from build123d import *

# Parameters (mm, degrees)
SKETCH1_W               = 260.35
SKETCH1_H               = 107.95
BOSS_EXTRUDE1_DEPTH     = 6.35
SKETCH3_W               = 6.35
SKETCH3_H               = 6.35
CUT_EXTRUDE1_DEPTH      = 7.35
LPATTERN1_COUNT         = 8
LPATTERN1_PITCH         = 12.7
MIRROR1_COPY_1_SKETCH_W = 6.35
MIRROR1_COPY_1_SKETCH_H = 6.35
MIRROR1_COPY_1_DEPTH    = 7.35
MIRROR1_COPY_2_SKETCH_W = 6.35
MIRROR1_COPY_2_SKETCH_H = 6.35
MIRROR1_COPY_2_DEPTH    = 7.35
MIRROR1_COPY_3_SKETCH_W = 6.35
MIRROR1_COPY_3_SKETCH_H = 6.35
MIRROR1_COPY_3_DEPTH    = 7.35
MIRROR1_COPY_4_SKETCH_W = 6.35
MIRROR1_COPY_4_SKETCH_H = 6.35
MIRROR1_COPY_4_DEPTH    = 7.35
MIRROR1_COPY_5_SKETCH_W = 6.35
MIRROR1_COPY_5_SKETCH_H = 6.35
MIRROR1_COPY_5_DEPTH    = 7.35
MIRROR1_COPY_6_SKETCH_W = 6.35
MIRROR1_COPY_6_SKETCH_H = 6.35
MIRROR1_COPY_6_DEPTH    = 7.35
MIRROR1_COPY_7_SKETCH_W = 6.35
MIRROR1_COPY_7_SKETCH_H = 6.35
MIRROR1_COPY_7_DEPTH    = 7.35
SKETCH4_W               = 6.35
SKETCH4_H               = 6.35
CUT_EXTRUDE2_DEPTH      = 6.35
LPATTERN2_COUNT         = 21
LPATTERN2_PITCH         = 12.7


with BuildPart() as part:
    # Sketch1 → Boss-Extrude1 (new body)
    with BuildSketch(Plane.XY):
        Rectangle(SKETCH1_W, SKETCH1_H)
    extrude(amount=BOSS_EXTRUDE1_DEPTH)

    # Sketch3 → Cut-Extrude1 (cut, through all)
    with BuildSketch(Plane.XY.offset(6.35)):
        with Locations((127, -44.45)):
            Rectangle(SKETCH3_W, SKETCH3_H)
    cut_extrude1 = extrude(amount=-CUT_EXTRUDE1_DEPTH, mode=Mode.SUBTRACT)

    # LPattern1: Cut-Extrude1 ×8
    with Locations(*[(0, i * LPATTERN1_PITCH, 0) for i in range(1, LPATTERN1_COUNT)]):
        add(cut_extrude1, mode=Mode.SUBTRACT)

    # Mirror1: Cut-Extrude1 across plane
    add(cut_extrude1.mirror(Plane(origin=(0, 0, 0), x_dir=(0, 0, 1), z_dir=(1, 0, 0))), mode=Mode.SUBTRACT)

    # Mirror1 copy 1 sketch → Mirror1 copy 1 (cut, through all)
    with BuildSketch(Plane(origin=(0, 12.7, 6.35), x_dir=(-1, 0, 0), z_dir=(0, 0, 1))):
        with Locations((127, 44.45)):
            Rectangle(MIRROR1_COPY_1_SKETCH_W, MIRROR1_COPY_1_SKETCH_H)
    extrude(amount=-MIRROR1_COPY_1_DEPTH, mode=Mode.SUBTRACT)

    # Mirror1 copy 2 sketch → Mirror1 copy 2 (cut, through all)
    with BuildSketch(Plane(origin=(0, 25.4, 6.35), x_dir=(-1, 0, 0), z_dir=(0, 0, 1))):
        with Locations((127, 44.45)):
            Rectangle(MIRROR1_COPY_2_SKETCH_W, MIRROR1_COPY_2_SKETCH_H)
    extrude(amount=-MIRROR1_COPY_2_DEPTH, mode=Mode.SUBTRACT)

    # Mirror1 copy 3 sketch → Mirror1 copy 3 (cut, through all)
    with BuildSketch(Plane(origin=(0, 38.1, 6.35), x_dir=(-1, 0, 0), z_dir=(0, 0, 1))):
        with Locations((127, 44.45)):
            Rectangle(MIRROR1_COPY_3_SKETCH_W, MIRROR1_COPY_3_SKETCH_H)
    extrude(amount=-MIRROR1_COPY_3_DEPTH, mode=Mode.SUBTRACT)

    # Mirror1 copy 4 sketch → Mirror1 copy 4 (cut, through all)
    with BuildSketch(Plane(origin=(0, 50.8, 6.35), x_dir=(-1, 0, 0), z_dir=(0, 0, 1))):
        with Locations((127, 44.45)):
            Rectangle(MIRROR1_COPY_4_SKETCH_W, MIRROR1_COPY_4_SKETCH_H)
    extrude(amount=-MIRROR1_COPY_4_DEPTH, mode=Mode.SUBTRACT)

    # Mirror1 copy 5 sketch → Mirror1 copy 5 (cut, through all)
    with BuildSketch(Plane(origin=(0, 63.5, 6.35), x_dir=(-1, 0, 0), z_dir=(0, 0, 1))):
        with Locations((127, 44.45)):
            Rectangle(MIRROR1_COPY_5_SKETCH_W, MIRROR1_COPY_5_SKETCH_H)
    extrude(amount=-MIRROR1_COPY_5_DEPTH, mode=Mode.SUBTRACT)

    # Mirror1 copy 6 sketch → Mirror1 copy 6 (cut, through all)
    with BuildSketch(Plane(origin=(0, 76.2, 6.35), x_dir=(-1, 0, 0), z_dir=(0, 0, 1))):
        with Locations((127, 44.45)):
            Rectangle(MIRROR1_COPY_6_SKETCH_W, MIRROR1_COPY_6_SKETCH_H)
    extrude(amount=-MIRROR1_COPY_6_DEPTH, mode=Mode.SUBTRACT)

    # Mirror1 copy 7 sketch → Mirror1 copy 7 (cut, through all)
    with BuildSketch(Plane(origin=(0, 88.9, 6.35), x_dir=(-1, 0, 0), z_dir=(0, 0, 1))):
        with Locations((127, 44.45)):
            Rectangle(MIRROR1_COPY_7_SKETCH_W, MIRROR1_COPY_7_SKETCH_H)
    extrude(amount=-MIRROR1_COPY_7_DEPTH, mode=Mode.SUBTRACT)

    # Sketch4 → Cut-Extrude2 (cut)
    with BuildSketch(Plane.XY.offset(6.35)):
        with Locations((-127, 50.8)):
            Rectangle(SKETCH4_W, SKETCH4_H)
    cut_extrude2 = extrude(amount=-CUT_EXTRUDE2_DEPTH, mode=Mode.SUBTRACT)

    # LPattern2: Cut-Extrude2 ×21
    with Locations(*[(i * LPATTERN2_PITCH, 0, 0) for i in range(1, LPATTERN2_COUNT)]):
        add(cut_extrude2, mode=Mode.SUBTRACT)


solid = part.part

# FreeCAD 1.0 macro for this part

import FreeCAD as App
import Part
import Sketcher

V = App.Vector
Q = App.Units.Quantity

doc = App.newDocument("Part")
body = doc.addObject("PartDesign::Body", "Body")

sketch1 = doc.addObject("Sketcher::SketchObject", "Sketch")
body.addObject(sketch1)
sketch1.AttachmentSupport = (doc.XY_Plane, [""])
sketch1.MapMode = "FlatFace"
sketch1.addGeometry([
    Part.LineSegment(V(-130, 54, 0), V(-130, -54, 0)),
    Part.LineSegment(V(-130, -54, 0), V(130, -54, 0)),
    Part.LineSegment(V(130, -54, 0), V(130, 54, 0)),
    Part.LineSegment(V(130, 54, 0), V(-130, 54, 0)),
], False)
sketch1.addConstraint([
    Sketcher.Constraint("Coincident", 0, 2, 1, 1),
    Sketcher.Constraint("Coincident", 1, 2, 2, 1),
    Sketcher.Constraint("Coincident", 2, 2, 3, 1),
    Sketcher.Constraint("Coincident", 3, 2, 0, 1),
    Sketcher.Constraint("Vertical", 0),
    Sketcher.Constraint("Horizontal", 1),
    Sketcher.Constraint("Vertical", 2),
    Sketcher.Constraint("Horizontal", 3),
    Sketcher.Constraint("Symmetric", 0, 2, 2, 2, -1, 1),
    Sketcher.Constraint("DistanceX", 1, 1, 1, 2, Q("10.25 in")),
    Sketcher.Constraint("DistanceY", 0, 2, 0, 1, Q("4.25 in")),
])
pad1 = doc.addObject("PartDesign::Pad", "Pad")
body.addObject(pad1)
pad1.Profile = sketch1
pad1.Length = Q("0.25 in")

sketch2 = doc.addObject("Sketcher::SketchObject", "Sketch001")
body.addObject(sketch2)
sketch2.AttachmentSupport = (doc.XY_Plane, [""])
sketch2.MapMode = "FlatFace"
sketch2.AttachmentOffset = App.Placement(V(0, 0, 0.25 * 25.4), App.Rotation())
sketch2.addGeometry([
    Part.LineSegment(V(124, -41, 0), V(124, -48, 0)),
    Part.LineSegment(V(124, -48, 0), V(130, -48, 0)),
    Part.LineSegment(V(130, -48, 0), V(130, -41, 0)),
    Part.LineSegment(V(130, -41, 0), V(124, -41, 0)),
], False)
sketch2.addConstraint([
    Sketcher.Constraint("Coincident", 0, 2, 1, 1),
    Sketcher.Constraint("Coincident", 1, 2, 2, 1),
    Sketcher.Constraint("Coincident", 2, 2, 3, 1),
    Sketcher.Constraint("Coincident", 3, 2, 0, 1),
    Sketcher.Constraint("Vertical", 0),
    Sketcher.Constraint("Horizontal", 1),
    Sketcher.Constraint("Vertical", 2),
    Sketcher.Constraint("Horizontal", 3),
    Sketcher.Constraint("Equal", 3, 0),
    Sketcher.Constraint("DistanceX", 1, 1, 1, 2, Q("0.25 in")),
    Sketcher.Constraint("DistanceX", -1, 1, 0, 2, Q("4.875 in")),
    Sketcher.Constraint("DistanceY", 0, 2, -1, 1, Q("1.875 in")),
])
pocket1 = doc.addObject("PartDesign::Pocket", "Pocket")
body.addObject(pocket1)
pocket1.Profile = sketch2
pocket1.Type = "ThroughAll"
doc.recompute()

linearpattern = doc.addObject("PartDesign::LinearPattern", "LinearPattern")
body.addObject(linearpattern)
linearpattern.Originals = [pocket1]
linearpattern.Direction = (doc.Y_Axis, [""])
linearpattern.Mode = "offset"
linearpattern.Offset = Q("0.5 in")
linearpattern.Occurrences = 8
body.Tip = linearpattern
doc.recompute()

mirrored = doc.addObject("PartDesign::Mirrored", "Mirrored")
body.addObject(mirrored)
mirrored.Originals = [pocket1]
mirrored.MirrorPlane = (doc.YZ_Plane, [""])
body.Tip = mirrored

sketch3 = doc.addObject("Sketcher::SketchObject", "Sketch002")
body.addObject(sketch3)
sketch3.AttachmentSupport = (doc.XY_Plane, [""])
sketch3.MapMode = "FlatFace"
sketch3.AttachmentOffset = App.Placement(V(0, 0, 0.25 * 25.4), App.Rotation())
sketch3.addGeometry([
    Part.LineSegment(V(-124, -35, 0), V(-124, -29, 0)),
    Part.LineSegment(V(-124, -29, 0), V(-130, -29, 0)),
    Part.LineSegment(V(-130, -29, 0), V(-130, -35, 0)),
    Part.LineSegment(V(-130, -35, 0), V(-124, -35, 0)),
], False)
sketch3.addConstraint([
    Sketcher.Constraint("Coincident", 0, 2, 1, 1),
    Sketcher.Constraint("Coincident", 1, 2, 2, 1),
    Sketcher.Constraint("Coincident", 2, 2, 3, 1),
    Sketcher.Constraint("Coincident", 3, 2, 0, 1),
    Sketcher.Constraint("Vertical", 0),
    Sketcher.Constraint("Horizontal", 1),
    Sketcher.Constraint("Vertical", 2),
    Sketcher.Constraint("Horizontal", 3),
    Sketcher.Constraint("Equal", 3, 0),
    Sketcher.Constraint("DistanceX", 1, 2, 1, 1, Q("0.25 in")),
    Sketcher.Constraint("DistanceX", 0, 2, -1, 1, Q("4.875 in")),
    Sketcher.Constraint("DistanceY", 0, 2, -1, 1, Q("1.125 in")),
])
pocket2 = doc.addObject("PartDesign::Pocket", "Pocket001")
body.addObject(pocket2)
pocket2.Profile = sketch3
pocket2.Type = "ThroughAll"

sketch4 = doc.addObject("Sketcher::SketchObject", "Sketch003")
body.addObject(sketch4)
sketch4.AttachmentSupport = (doc.XY_Plane, [""])
sketch4.MapMode = "FlatFace"
sketch4.AttachmentOffset = App.Placement(V(0, 0, 0.25 * 25.4), App.Rotation())
sketch4.addGeometry([
    Part.LineSegment(V(-124, -22, 0), V(-124, -16, 0)),
    Part.LineSegment(V(-124, -16, 0), V(-130, -16, 0)),
    Part.LineSegment(V(-130, -16, 0), V(-130, -22, 0)),
    Part.LineSegment(V(-130, -22, 0), V(-124, -22, 0)),
], False)
sketch4.addConstraint([
    Sketcher.Constraint("Coincident", 0, 2, 1, 1),
    Sketcher.Constraint("Coincident", 1, 2, 2, 1),
    Sketcher.Constraint("Coincident", 2, 2, 3, 1),
    Sketcher.Constraint("Coincident", 3, 2, 0, 1),
    Sketcher.Constraint("Vertical", 0),
    Sketcher.Constraint("Horizontal", 1),
    Sketcher.Constraint("Vertical", 2),
    Sketcher.Constraint("Horizontal", 3),
    Sketcher.Constraint("Equal", 3, 0),
    Sketcher.Constraint("DistanceX", 1, 2, 1, 1, Q("0.25 in")),
    Sketcher.Constraint("DistanceX", 0, 2, -1, 1, Q("4.875 in")),
    Sketcher.Constraint("DistanceY", 0, 2, -1, 1, Q("0.625 in")),
])
pocket3 = doc.addObject("PartDesign::Pocket", "Pocket002")
body.addObject(pocket3)
pocket3.Profile = sketch4
pocket3.Type = "ThroughAll"

sketch5 = doc.addObject("Sketcher::SketchObject", "Sketch004")
body.addObject(sketch5)
sketch5.AttachmentSupport = (doc.XY_Plane, [""])
sketch5.MapMode = "FlatFace"
sketch5.AttachmentOffset = App.Placement(V(0, 0, 0.25 * 25.4), App.Rotation())
sketch5.addGeometry([
    Part.LineSegment(V(-124, -10, 0), V(-124, -3, 0)),
    Part.LineSegment(V(-124, -3, 0), V(-130, -3, 0)),
    Part.LineSegment(V(-130, -3, 0), V(-130, -10, 0)),
    Part.LineSegment(V(-130, -10, 0), V(-124, -10, 0)),
], False)
sketch5.addConstraint([
    Sketcher.Constraint("Coincident", 0, 2, 1, 1),
    Sketcher.Constraint("Coincident", 1, 2, 2, 1),
    Sketcher.Constraint("Coincident", 2, 2, 3, 1),
    Sketcher.Constraint("Coincident", 3, 2, 0, 1),
    Sketcher.Constraint("Vertical", 0),
    Sketcher.Constraint("Horizontal", 1),
    Sketcher.Constraint("Vertical", 2),
    Sketcher.Constraint("Horizontal", 3),
    Sketcher.Constraint("Equal", 3, 0),
    Sketcher.Constraint("DistanceX", 1, 2, 1, 1, Q("0.25 in")),
    Sketcher.Constraint("DistanceX", 0, 2, -1, 1, Q("4.875 in")),
    Sketcher.Constraint("DistanceY", 0, 2, -1, 1, Q("0.125 in")),
])
pocket4 = doc.addObject("PartDesign::Pocket", "Pocket003")
body.addObject(pocket4)
pocket4.Profile = sketch5
pocket4.Type = "ThroughAll"

sketch6 = doc.addObject("Sketcher::SketchObject", "Sketch005")
body.addObject(sketch6)
sketch6.AttachmentSupport = (doc.XY_Plane, [""])
sketch6.MapMode = "FlatFace"
sketch6.AttachmentOffset = App.Placement(V(0, 0, 0.25 * 25.4), App.Rotation())
sketch6.addGeometry([
    Part.LineSegment(V(-124, 3, 0), V(-124, 10, 0)),
    Part.LineSegment(V(-124, 10, 0), V(-130, 10, 0)),
    Part.LineSegment(V(-130, 10, 0), V(-130, 3, 0)),
    Part.LineSegment(V(-130, 3, 0), V(-124, 3, 0)),
], False)
sketch6.addConstraint([
    Sketcher.Constraint("Coincident", 0, 2, 1, 1),
    Sketcher.Constraint("Coincident", 1, 2, 2, 1),
    Sketcher.Constraint("Coincident", 2, 2, 3, 1),
    Sketcher.Constraint("Coincident", 3, 2, 0, 1),
    Sketcher.Constraint("Vertical", 0),
    Sketcher.Constraint("Horizontal", 1),
    Sketcher.Constraint("Vertical", 2),
    Sketcher.Constraint("Horizontal", 3),
    Sketcher.Constraint("Equal", 3, 0),
    Sketcher.Constraint("DistanceX", 1, 2, 1, 1, Q("0.25 in")),
    Sketcher.Constraint("DistanceX", 0, 2, -1, 1, Q("4.875 in")),
    Sketcher.Constraint("DistanceY", -1, 1, 0, 2, Q("0.375 in")),
])
pocket5 = doc.addObject("PartDesign::Pocket", "Pocket004")
body.addObject(pocket5)
pocket5.Profile = sketch6
pocket5.Type = "ThroughAll"

sketch7 = doc.addObject("Sketcher::SketchObject", "Sketch006")
body.addObject(sketch7)
sketch7.AttachmentSupport = (doc.XY_Plane, [""])
sketch7.MapMode = "FlatFace"
sketch7.AttachmentOffset = App.Placement(V(0, 0, 0.25 * 25.4), App.Rotation())
sketch7.addGeometry([
    Part.LineSegment(V(-124, 16, 0), V(-124, 22, 0)),
    Part.LineSegment(V(-124, 22, 0), V(-130, 22, 0)),
    Part.LineSegment(V(-130, 22, 0), V(-130, 16, 0)),
    Part.LineSegment(V(-130, 16, 0), V(-124, 16, 0)),
], False)
sketch7.addConstraint([
    Sketcher.Constraint("Coincident", 0, 2, 1, 1),
    Sketcher.Constraint("Coincident", 1, 2, 2, 1),
    Sketcher.Constraint("Coincident", 2, 2, 3, 1),
    Sketcher.Constraint("Coincident", 3, 2, 0, 1),
    Sketcher.Constraint("Vertical", 0),
    Sketcher.Constraint("Horizontal", 1),
    Sketcher.Constraint("Vertical", 2),
    Sketcher.Constraint("Horizontal", 3),
    Sketcher.Constraint("Equal", 3, 0),
    Sketcher.Constraint("DistanceX", 1, 2, 1, 1, Q("0.25 in")),
    Sketcher.Constraint("DistanceX", 0, 2, -1, 1, Q("4.875 in")),
    Sketcher.Constraint("DistanceY", -1, 1, 0, 2, Q("0.875 in")),
])
pocket6 = doc.addObject("PartDesign::Pocket", "Pocket005")
body.addObject(pocket6)
pocket6.Profile = sketch7
pocket6.Type = "ThroughAll"

sketch8 = doc.addObject("Sketcher::SketchObject", "Sketch007")
body.addObject(sketch8)
sketch8.AttachmentSupport = (doc.XY_Plane, [""])
sketch8.MapMode = "FlatFace"
sketch8.AttachmentOffset = App.Placement(V(0, 0, 0.25 * 25.4), App.Rotation())
sketch8.addGeometry([
    Part.LineSegment(V(-124, 29, 0), V(-124, 35, 0)),
    Part.LineSegment(V(-124, 35, 0), V(-130, 35, 0)),
    Part.LineSegment(V(-130, 35, 0), V(-130, 29, 0)),
    Part.LineSegment(V(-130, 29, 0), V(-124, 29, 0)),
], False)
sketch8.addConstraint([
    Sketcher.Constraint("Coincident", 0, 2, 1, 1),
    Sketcher.Constraint("Coincident", 1, 2, 2, 1),
    Sketcher.Constraint("Coincident", 2, 2, 3, 1),
    Sketcher.Constraint("Coincident", 3, 2, 0, 1),
    Sketcher.Constraint("Vertical", 0),
    Sketcher.Constraint("Horizontal", 1),
    Sketcher.Constraint("Vertical", 2),
    Sketcher.Constraint("Horizontal", 3),
    Sketcher.Constraint("Equal", 3, 0),
    Sketcher.Constraint("DistanceX", 1, 2, 1, 1, Q("0.25 in")),
    Sketcher.Constraint("DistanceX", 0, 2, -1, 1, Q("4.875 in")),
    Sketcher.Constraint("DistanceY", -1, 1, 0, 2, Q("1.375 in")),
])
pocket7 = doc.addObject("PartDesign::Pocket", "Pocket006")
body.addObject(pocket7)
pocket7.Profile = sketch8
pocket7.Type = "ThroughAll"

sketch9 = doc.addObject("Sketcher::SketchObject", "Sketch008")
body.addObject(sketch9)
sketch9.AttachmentSupport = (doc.XY_Plane, [""])
sketch9.MapMode = "FlatFace"
sketch9.AttachmentOffset = App.Placement(V(0, 0, 0.25 * 25.4), App.Rotation())
sketch9.addGeometry([
    Part.LineSegment(V(-124, 41, 0), V(-124, 48, 0)),
    Part.LineSegment(V(-124, 48, 0), V(-130, 48, 0)),
    Part.LineSegment(V(-130, 48, 0), V(-130, 41, 0)),
    Part.LineSegment(V(-130, 41, 0), V(-124, 41, 0)),
], False)
sketch9.addConstraint([
    Sketcher.Constraint("Coincident", 0, 2, 1, 1),
    Sketcher.Constraint("Coincident", 1, 2, 2, 1),
    Sketcher.Constraint("Coincident", 2, 2, 3, 1),
    Sketcher.Constraint("Coincident", 3, 2, 0, 1),
    Sketcher.Constraint("Vertical", 0),
    Sketcher.Constraint("Horizontal", 1),
    Sketcher.Constraint("Vertical", 2),
    Sketcher.Constraint("Horizontal", 3),
    Sketcher.Constraint("Equal", 3, 0),
    Sketcher.Constraint("DistanceX", 1, 2, 1, 1, Q("0.25 in")),
    Sketcher.Constraint("DistanceX", 0, 2, -1, 1, Q("4.875 in")),
    Sketcher.Constraint("DistanceY", -1, 1, 0, 2, Q("1.875 in")),
])
pocket8 = doc.addObject("PartDesign::Pocket", "Pocket007")
body.addObject(pocket8)
pocket8.Profile = sketch9
pocket8.Type = "ThroughAll"

sketch10 = doc.addObject("Sketcher::SketchObject", "Sketch009")
body.addObject(sketch10)
sketch10.AttachmentSupport = (doc.XY_Plane, [""])
sketch10.MapMode = "FlatFace"
sketch10.AttachmentOffset = App.Placement(V(0, 0, 0.25 * 25.4), App.Rotation())
sketch10.addGeometry([
    Part.LineSegment(V(-130, 54, 0), V(-130, 48, 0)),
    Part.LineSegment(V(-130, 48, 0), V(-124, 48, 0)),
    Part.LineSegment(V(-124, 48, 0), V(-124, 54, 0)),
    Part.LineSegment(V(-124, 54, 0), V(-130, 54, 0)),
], False)
sketch10.addConstraint([
    Sketcher.Constraint("Coincident", 0, 2, 1, 1),
    Sketcher.Constraint("Coincident", 1, 2, 2, 1),
    Sketcher.Constraint("Coincident", 2, 2, 3, 1),
    Sketcher.Constraint("Coincident", 3, 2, 0, 1),
    Sketcher.Constraint("Vertical", 0),
    Sketcher.Constraint("Horizontal", 1),
    Sketcher.Constraint("Vertical", 2),
    Sketcher.Constraint("Horizontal", 3),
    Sketcher.Constraint("Equal", 3, 0),
    Sketcher.Constraint("DistanceX", 1, 1, 1, 2, Q("0.25 in")),
    Sketcher.Constraint("DistanceX", 0, 2, -1, 1, Q("5.125 in")),
    Sketcher.Constraint("DistanceY", -1, 1, 0, 2, Q("1.875 in")),
])
pocket9 = doc.addObject("PartDesign::Pocket", "Pocket008")
body.addObject(pocket9)
pocket9.Profile = sketch10
pocket9.Length = Q("0.25 in")
doc.recompute()

linearpattern2 = doc.addObject("PartDesign::LinearPattern", "LinearPattern001")
body.addObject(linearpattern2)
linearpattern2.Originals = [pocket9]
linearpattern2.Direction = (doc.X_Axis, [""])
linearpattern2.Mode = "offset"
linearpattern2.Offset = Q("0.5 in")
linearpattern2.Occurrences = 21
body.Tip = linearpattern2

doc.recompute()
